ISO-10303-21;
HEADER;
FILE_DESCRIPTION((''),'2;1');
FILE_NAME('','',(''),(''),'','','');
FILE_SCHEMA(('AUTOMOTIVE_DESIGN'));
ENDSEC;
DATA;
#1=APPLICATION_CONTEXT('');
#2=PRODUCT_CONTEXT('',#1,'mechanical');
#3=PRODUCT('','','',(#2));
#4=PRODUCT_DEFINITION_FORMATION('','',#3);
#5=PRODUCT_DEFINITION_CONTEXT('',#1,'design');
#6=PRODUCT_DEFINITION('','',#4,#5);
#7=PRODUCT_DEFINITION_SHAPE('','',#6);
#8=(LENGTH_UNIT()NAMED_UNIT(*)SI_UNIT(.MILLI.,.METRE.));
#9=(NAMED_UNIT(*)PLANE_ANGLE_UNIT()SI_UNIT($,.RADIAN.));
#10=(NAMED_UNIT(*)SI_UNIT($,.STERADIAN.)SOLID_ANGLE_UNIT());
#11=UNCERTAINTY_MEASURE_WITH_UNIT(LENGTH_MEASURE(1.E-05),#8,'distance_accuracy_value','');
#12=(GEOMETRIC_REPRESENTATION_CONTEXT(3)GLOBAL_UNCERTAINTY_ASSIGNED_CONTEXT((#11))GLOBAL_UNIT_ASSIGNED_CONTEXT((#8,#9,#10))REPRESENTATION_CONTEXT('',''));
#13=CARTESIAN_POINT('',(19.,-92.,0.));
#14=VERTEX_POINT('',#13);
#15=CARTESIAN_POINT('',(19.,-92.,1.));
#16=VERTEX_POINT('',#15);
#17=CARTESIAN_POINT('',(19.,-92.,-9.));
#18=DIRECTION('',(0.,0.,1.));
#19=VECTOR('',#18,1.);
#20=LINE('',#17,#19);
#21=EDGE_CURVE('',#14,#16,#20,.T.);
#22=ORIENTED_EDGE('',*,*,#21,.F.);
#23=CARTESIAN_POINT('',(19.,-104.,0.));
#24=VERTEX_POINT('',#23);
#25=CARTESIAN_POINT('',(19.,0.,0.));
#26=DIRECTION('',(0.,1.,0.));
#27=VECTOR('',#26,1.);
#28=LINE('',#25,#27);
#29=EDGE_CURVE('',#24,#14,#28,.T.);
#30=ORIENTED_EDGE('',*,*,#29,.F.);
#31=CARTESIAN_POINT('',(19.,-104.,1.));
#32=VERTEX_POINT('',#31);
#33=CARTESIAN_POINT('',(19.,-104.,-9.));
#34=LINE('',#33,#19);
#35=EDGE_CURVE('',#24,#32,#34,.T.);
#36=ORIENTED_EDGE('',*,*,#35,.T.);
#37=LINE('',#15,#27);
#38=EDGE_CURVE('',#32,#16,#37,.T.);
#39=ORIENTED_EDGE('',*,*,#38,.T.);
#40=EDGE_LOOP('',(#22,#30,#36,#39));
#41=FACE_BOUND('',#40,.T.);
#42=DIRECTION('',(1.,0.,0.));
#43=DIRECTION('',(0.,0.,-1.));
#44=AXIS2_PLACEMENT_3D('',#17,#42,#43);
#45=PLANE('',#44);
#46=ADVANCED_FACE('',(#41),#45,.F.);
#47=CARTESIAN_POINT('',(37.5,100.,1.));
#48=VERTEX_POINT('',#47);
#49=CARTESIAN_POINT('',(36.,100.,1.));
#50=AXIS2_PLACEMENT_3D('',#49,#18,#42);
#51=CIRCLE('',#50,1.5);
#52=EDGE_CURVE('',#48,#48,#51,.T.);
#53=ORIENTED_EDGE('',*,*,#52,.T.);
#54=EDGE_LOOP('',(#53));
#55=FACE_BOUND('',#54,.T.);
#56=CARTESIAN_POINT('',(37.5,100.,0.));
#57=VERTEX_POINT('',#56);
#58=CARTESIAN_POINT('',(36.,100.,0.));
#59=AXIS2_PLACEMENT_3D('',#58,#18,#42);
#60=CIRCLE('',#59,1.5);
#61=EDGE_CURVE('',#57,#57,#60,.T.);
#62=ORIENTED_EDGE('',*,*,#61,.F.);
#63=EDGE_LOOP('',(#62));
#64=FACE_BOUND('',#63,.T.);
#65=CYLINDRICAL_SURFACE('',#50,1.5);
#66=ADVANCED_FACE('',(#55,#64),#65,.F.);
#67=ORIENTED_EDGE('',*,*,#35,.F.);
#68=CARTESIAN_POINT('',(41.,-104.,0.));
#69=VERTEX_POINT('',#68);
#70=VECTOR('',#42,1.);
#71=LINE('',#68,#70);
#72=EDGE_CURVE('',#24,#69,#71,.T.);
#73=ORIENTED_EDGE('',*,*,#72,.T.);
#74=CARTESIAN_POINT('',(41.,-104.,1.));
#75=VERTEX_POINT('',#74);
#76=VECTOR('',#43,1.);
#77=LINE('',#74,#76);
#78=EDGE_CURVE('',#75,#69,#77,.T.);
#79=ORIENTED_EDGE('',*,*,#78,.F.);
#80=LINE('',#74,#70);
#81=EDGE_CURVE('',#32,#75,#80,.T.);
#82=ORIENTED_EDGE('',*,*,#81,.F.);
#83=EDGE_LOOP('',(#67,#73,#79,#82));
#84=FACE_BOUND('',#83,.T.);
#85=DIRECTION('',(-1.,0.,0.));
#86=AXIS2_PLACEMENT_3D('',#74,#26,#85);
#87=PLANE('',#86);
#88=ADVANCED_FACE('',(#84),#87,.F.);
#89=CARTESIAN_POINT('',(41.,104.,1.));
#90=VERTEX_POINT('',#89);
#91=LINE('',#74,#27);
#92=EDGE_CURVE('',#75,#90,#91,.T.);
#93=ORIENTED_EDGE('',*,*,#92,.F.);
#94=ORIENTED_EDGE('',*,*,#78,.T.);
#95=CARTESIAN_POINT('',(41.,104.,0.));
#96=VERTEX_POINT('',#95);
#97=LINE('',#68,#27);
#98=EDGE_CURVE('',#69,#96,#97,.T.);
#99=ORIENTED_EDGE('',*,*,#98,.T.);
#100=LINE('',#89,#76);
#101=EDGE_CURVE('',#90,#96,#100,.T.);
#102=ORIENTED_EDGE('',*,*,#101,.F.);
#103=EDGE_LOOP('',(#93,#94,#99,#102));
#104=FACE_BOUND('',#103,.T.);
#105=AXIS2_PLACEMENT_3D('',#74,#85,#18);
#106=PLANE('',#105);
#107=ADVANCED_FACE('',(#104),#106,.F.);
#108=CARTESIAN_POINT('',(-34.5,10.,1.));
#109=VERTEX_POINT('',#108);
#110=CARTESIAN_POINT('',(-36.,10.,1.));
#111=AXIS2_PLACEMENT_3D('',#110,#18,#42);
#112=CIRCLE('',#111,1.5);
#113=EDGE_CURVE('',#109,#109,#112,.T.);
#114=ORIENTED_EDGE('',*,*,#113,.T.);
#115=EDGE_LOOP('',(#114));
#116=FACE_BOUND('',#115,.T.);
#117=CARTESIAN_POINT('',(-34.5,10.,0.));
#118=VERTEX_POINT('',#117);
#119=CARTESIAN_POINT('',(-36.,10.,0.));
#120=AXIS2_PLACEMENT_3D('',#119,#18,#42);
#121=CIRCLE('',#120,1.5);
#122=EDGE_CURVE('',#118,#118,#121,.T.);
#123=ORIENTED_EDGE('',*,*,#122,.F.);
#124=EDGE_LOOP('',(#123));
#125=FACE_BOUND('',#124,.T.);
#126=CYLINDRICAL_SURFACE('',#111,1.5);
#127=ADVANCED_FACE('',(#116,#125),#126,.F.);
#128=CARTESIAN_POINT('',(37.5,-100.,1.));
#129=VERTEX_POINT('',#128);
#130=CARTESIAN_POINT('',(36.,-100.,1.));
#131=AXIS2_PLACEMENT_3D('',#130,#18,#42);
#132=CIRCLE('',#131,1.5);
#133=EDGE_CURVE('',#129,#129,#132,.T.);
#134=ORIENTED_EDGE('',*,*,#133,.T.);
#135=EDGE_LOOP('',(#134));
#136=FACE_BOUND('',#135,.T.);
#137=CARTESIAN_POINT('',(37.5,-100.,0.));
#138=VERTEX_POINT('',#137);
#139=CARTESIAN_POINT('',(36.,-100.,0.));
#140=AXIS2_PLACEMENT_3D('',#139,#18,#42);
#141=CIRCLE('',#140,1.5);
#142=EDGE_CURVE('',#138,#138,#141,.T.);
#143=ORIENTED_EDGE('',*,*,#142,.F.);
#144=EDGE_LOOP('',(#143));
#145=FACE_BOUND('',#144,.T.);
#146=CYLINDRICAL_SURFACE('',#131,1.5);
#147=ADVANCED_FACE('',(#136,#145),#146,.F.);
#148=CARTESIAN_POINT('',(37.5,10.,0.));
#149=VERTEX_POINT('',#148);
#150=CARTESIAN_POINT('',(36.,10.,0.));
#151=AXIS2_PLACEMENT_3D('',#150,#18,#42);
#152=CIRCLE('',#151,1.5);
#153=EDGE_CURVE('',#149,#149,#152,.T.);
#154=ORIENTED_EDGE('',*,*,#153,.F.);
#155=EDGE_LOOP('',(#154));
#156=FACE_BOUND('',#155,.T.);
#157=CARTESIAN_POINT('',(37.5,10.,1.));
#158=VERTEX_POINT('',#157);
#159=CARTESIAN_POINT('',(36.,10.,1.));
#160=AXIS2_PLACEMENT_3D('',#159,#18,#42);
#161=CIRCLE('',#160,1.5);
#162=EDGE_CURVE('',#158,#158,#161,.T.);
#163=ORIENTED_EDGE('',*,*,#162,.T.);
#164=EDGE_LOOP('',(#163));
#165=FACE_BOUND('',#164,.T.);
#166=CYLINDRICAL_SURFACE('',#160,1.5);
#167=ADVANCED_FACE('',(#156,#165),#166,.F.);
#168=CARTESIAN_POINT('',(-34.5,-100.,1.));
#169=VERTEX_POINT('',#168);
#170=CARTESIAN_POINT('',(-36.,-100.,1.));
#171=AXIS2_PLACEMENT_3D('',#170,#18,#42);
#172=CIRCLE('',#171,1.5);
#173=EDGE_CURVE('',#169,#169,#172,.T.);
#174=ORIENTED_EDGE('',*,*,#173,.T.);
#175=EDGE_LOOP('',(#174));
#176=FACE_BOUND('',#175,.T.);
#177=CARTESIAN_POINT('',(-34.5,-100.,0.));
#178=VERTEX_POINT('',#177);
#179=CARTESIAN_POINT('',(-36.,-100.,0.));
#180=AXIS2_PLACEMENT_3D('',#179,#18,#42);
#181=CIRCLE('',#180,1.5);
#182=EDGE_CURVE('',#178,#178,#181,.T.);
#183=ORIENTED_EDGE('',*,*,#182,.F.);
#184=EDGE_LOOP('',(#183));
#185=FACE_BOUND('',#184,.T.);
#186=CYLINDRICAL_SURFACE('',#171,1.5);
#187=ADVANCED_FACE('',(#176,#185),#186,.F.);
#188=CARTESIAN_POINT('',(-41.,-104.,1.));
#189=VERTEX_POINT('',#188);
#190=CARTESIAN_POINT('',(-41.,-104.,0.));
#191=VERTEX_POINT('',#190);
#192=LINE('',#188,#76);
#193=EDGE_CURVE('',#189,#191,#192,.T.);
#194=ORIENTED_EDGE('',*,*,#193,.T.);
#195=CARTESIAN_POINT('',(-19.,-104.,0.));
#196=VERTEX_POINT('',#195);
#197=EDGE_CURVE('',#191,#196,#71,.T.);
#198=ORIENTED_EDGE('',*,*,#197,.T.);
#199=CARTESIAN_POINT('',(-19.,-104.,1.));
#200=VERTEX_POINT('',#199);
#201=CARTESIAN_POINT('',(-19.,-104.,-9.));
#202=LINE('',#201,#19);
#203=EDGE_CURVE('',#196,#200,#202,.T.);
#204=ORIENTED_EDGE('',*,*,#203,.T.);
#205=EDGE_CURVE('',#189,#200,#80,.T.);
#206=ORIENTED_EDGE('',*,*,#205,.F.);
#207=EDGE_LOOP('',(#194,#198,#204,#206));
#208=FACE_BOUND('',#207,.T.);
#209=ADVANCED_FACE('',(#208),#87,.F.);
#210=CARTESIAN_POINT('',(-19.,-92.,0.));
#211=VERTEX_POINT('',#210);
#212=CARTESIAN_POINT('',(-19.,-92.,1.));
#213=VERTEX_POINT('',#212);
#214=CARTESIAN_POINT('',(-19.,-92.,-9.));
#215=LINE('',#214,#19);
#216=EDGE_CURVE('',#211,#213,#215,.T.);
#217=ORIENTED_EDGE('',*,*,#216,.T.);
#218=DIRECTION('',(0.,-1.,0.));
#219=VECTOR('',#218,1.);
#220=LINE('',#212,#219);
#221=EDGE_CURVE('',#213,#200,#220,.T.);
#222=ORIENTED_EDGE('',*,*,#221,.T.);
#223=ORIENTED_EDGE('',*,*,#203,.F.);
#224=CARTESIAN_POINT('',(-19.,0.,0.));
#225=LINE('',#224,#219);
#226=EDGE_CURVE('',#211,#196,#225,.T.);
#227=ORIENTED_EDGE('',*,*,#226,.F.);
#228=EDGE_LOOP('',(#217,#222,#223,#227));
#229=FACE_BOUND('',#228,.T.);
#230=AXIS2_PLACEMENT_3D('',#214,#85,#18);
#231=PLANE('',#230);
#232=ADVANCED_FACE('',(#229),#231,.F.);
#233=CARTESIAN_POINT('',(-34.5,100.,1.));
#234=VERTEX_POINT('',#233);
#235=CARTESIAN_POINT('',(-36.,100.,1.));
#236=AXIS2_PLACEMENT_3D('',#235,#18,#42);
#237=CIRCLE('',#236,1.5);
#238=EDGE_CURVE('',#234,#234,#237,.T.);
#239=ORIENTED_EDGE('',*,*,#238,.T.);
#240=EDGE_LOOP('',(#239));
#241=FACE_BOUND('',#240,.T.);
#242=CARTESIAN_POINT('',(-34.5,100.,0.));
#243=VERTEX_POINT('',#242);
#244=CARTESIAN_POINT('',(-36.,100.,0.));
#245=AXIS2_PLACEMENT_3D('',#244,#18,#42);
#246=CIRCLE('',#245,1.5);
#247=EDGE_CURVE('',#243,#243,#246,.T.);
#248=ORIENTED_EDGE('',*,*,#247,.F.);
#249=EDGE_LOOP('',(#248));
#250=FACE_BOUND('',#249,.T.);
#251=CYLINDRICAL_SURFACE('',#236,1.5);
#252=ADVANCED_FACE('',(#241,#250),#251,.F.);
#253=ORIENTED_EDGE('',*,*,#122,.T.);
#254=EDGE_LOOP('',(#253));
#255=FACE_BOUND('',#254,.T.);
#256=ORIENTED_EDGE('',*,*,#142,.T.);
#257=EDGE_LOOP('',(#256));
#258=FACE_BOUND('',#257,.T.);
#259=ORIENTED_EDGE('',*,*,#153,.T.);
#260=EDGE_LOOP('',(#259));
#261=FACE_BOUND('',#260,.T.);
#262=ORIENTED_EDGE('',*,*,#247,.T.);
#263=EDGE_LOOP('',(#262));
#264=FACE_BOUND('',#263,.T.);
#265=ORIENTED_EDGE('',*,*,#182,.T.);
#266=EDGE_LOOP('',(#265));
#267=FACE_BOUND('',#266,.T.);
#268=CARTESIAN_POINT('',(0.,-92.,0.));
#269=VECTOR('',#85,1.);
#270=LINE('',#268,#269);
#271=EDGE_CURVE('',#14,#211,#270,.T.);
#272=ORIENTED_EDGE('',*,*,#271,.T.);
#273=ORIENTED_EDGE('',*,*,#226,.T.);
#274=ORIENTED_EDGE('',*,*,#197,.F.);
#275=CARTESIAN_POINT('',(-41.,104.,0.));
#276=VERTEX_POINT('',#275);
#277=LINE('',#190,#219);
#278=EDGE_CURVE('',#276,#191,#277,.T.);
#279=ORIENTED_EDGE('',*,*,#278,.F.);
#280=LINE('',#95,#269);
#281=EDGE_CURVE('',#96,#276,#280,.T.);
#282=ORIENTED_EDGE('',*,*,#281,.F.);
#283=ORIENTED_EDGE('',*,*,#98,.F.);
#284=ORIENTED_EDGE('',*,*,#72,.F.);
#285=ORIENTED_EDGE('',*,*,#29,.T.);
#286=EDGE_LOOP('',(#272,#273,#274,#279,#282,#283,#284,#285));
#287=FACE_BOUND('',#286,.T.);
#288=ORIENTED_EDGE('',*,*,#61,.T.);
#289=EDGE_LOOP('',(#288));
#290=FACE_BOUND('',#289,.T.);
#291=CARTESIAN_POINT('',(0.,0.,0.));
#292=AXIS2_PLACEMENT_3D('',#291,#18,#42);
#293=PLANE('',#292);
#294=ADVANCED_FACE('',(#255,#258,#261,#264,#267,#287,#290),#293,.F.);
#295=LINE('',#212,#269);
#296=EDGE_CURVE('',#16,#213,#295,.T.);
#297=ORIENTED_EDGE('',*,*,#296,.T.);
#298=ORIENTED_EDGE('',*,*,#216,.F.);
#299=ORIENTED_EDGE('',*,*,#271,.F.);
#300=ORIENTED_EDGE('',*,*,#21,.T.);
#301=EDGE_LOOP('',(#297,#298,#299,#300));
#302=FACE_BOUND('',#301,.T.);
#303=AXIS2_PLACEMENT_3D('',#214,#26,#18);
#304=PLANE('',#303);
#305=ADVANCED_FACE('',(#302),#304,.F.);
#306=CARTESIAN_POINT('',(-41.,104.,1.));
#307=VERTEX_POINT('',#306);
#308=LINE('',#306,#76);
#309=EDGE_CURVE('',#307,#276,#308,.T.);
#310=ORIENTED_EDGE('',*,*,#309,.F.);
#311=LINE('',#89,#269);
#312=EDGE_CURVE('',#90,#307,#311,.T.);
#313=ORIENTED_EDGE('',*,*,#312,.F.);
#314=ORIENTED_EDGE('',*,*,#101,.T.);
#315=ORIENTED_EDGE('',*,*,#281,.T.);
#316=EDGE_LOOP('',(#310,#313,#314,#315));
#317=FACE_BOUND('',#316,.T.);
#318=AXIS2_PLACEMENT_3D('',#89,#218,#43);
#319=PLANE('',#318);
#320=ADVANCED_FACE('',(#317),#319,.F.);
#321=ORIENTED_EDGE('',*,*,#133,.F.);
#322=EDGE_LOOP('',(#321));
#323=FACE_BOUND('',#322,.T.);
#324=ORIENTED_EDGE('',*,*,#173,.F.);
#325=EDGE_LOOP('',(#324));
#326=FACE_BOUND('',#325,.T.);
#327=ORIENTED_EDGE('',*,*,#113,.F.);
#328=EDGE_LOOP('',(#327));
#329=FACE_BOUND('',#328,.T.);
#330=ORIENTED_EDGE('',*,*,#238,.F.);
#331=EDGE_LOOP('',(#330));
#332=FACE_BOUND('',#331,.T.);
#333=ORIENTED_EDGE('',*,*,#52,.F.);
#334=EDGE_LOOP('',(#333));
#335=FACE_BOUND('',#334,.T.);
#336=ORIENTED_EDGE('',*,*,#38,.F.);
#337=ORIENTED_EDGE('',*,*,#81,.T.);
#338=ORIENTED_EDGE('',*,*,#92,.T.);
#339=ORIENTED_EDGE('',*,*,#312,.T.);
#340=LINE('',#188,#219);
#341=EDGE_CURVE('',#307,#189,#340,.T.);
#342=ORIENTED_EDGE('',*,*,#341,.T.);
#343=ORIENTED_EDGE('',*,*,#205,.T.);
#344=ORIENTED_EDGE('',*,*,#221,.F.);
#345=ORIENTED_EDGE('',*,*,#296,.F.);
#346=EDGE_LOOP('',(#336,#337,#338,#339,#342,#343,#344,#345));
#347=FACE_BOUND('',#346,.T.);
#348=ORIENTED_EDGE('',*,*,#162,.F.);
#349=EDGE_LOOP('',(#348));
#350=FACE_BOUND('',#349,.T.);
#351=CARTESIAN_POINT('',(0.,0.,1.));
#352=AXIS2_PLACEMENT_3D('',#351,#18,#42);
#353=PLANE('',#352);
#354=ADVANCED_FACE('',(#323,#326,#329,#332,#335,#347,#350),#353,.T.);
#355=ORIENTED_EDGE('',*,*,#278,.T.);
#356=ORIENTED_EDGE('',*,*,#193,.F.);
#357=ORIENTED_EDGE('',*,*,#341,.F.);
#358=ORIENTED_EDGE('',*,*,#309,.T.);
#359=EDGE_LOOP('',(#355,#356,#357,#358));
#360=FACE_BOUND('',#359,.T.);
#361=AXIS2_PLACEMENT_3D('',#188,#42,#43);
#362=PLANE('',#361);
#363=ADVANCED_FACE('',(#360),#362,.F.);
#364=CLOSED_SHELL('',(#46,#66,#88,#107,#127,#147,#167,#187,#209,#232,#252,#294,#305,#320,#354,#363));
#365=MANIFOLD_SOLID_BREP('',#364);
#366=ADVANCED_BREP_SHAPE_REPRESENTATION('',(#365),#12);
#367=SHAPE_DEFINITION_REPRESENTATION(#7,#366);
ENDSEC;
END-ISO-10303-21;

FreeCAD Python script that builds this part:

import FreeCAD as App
import Part
import Sketcher
Q = App.Units.Quantity


def add_polygon(sketch, points):
    """Adds a closed chain of lines whose ends are joined by coincident constraints."""
    first, n = sketch.GeometryCount, len(points)
    for a, b in zip(points, points[1:] + points[:1]):
        sketch.addGeometry(Part.LineSegment(App.Vector(*a, 0), App.Vector(*b, 0)), False)
    for i in range(n):
        sketch.addConstraint(Sketcher.Constraint("Coincident", first + i, 2, first + (i + 1) % n, 1))

doc = App.newDocument("Part")
body = doc.addObject("PartDesign::Body", "Body")

sketch1 = doc.addObject("Sketcher::SketchObject", "Sketch")
body.addObject(sketch1)
sketch1.AttachmentSupport = (doc.XY_Plane, [""])
sketch1.MapMode = "FlatFace"
add_polygon(sketch1, [(-41, 104), (-41, -104), (41, -104), (41, 104)])
sketch1.addConstraint(Sketcher.Constraint("Vertical", 0))
sketch1.addConstraint(Sketcher.Constraint("Horizontal", 1))
sketch1.addConstraint(Sketcher.Constraint("Vertical", 2))
sketch1.addConstraint(Sketcher.Constraint("Horizontal", 3))
sketch1.addConstraint(Sketcher.Constraint("Symmetric", 0, 2, 2, 2, -1, 1))
sketch1.addConstraint(Sketcher.Constraint("DistanceX", 1, 1, 1, 2, Q("82 mm")))
sketch1.addConstraint(Sketcher.Constraint("DistanceY", 0, 2, 0, 1, Q("208 mm")))
pad1 = doc.addObject("PartDesign::Pad", "Pad")
body.addObject(pad1)
pad1.Profile = sketch1
pad1.Length = 1

sketch2 = doc.addObject("Sketcher::SketchObject", "Sketch001")
body.addObject(sketch2)
sketch2.AttachmentSupport = (doc.XY_Plane, [""])
sketch2.MapMode = "FlatFace"
sketch2.AttachmentOffset = App.Placement(App.Vector(0, 0, 1), App.Rotation())
sketch2.addGeometry(Part.Circle(App.Vector(-36, 10, 0), App.Vector(0, 0, 1), 1.5), False)
sketch2.addGeometry(Part.Circle(App.Vector(36, 10, 0), App.Vector(0, 0, 1), 1.5), False)
sketch2.addGeometry(Part.Circle(App.Vector(36, -100, 0), App.Vector(0, 0, 1), 1.5), False)
sketch2.addGeometry(Part.Circle(App.Vector(-36, -100, 0), App.Vector(0, 0, 1), 1.5), False)
sketch2.addGeometry(Part.Circle(App.Vector(-36, 100, 0), App.Vector(0, 0, 1), 1.5), False)
sketch2.addGeometry(Part.Circle(App.Vector(36, 100, 0), App.Vector(0, 0, 1), 1.5), False)
sketch2.addConstraint(Sketcher.Constraint("Equal", 0, 1))
sketch2.addConstraint(Sketcher.Constraint("Equal", 1, 2))
sketch2.addConstraint(Sketcher.Constraint("Equal", 2, 3))
sketch2.addConstraint(Sketcher.Constraint("Equal", 3, 4))
sketch2.addConstraint(Sketcher.Constraint("Equal", 4, 5))
sketch2.addConstraint(Sketcher.Constraint("Symmetric", 2, 3, 4, 3, -1, 1))
sketch2.addConstraint(Sketcher.Constraint("Symmetric", 3, 3, 5, 3, -1, 1))
sketch2.addConstraint(Sketcher.Constraint("Symmetric", 0, 3, 1, 3, -2))
sketch2.addConstraint(Sketcher.Constraint("Symmetric", 2, 3, 3, 3, -2))
sketch2.addConstraint(Sketcher.Constraint("Vertical", 1, 3, 2, 3))
sketch2.addConstraint(Sketcher.Constraint("Diameter", 0, Q("3 mm")))
sketch2.addConstraint(Sketcher.Constraint("DistanceX", 0, 3, -1, 1, Q("36 mm")))
sketch2.addConstraint(Sketcher.Constraint("DistanceY", -1, 1, 0, 3, Q("10 mm")))
sketch2.addConstraint(Sketcher.Constraint("DistanceY", 2, 3, -1, 1, Q("100 mm")))
doc.recompute()
hole = doc.addObject("PartDesign::Hole", "Hole")
body.addObject(hole)
hole.Profile = sketch2
hole.ThreadType = "None"
hole.Diameter = 3
hole.DepthType = "ThroughAll"

sketch3 = doc.addObject("Sketcher::SketchObject", "Sketch002")
body.addObject(sketch3)
sketch3.AttachmentSupport = (doc.XY_Plane, [""])
sketch3.MapMode = "FlatFace"
sketch3.AttachmentOffset = App.Placement(App.Vector(0, 0, 1), App.Rotation())
add_polygon(sketch3, [(-19, -92), (-19, -104), (19, -104), (19, -92)])
sketch3.addConstraint(Sketcher.Constraint("Vertical", 0))
sketch3.addConstraint(Sketcher.Constraint("Horizontal", 1))
sketch3.addConstraint(Sketcher.Constraint("Vertical", 2))
sketch3.addConstraint(Sketcher.Constraint("Horizontal", 3))
sketch3.addConstraint(Sketcher.Constraint("DistanceX", 1, 1, 1, 2, Q("38 mm")))
sketch3.addConstraint(Sketcher.Constraint("DistanceY", 0, 2, 0, 1, Q("12 mm")))
sketch3.addConstraint(Sketcher.Constraint("DistanceX", 0, 2, -1, 1, Q("19 mm")))
sketch3.addConstraint(Sketcher.Constraint("DistanceY", 0, 2, -1, 1, Q("104 mm")))
pocket1 = doc.addObject("PartDesign::Pocket", "Pocket")
body.addObject(pocket1)
pocket1.Profile = sketch3
pocket1.Length = 10

doc.recompute()
